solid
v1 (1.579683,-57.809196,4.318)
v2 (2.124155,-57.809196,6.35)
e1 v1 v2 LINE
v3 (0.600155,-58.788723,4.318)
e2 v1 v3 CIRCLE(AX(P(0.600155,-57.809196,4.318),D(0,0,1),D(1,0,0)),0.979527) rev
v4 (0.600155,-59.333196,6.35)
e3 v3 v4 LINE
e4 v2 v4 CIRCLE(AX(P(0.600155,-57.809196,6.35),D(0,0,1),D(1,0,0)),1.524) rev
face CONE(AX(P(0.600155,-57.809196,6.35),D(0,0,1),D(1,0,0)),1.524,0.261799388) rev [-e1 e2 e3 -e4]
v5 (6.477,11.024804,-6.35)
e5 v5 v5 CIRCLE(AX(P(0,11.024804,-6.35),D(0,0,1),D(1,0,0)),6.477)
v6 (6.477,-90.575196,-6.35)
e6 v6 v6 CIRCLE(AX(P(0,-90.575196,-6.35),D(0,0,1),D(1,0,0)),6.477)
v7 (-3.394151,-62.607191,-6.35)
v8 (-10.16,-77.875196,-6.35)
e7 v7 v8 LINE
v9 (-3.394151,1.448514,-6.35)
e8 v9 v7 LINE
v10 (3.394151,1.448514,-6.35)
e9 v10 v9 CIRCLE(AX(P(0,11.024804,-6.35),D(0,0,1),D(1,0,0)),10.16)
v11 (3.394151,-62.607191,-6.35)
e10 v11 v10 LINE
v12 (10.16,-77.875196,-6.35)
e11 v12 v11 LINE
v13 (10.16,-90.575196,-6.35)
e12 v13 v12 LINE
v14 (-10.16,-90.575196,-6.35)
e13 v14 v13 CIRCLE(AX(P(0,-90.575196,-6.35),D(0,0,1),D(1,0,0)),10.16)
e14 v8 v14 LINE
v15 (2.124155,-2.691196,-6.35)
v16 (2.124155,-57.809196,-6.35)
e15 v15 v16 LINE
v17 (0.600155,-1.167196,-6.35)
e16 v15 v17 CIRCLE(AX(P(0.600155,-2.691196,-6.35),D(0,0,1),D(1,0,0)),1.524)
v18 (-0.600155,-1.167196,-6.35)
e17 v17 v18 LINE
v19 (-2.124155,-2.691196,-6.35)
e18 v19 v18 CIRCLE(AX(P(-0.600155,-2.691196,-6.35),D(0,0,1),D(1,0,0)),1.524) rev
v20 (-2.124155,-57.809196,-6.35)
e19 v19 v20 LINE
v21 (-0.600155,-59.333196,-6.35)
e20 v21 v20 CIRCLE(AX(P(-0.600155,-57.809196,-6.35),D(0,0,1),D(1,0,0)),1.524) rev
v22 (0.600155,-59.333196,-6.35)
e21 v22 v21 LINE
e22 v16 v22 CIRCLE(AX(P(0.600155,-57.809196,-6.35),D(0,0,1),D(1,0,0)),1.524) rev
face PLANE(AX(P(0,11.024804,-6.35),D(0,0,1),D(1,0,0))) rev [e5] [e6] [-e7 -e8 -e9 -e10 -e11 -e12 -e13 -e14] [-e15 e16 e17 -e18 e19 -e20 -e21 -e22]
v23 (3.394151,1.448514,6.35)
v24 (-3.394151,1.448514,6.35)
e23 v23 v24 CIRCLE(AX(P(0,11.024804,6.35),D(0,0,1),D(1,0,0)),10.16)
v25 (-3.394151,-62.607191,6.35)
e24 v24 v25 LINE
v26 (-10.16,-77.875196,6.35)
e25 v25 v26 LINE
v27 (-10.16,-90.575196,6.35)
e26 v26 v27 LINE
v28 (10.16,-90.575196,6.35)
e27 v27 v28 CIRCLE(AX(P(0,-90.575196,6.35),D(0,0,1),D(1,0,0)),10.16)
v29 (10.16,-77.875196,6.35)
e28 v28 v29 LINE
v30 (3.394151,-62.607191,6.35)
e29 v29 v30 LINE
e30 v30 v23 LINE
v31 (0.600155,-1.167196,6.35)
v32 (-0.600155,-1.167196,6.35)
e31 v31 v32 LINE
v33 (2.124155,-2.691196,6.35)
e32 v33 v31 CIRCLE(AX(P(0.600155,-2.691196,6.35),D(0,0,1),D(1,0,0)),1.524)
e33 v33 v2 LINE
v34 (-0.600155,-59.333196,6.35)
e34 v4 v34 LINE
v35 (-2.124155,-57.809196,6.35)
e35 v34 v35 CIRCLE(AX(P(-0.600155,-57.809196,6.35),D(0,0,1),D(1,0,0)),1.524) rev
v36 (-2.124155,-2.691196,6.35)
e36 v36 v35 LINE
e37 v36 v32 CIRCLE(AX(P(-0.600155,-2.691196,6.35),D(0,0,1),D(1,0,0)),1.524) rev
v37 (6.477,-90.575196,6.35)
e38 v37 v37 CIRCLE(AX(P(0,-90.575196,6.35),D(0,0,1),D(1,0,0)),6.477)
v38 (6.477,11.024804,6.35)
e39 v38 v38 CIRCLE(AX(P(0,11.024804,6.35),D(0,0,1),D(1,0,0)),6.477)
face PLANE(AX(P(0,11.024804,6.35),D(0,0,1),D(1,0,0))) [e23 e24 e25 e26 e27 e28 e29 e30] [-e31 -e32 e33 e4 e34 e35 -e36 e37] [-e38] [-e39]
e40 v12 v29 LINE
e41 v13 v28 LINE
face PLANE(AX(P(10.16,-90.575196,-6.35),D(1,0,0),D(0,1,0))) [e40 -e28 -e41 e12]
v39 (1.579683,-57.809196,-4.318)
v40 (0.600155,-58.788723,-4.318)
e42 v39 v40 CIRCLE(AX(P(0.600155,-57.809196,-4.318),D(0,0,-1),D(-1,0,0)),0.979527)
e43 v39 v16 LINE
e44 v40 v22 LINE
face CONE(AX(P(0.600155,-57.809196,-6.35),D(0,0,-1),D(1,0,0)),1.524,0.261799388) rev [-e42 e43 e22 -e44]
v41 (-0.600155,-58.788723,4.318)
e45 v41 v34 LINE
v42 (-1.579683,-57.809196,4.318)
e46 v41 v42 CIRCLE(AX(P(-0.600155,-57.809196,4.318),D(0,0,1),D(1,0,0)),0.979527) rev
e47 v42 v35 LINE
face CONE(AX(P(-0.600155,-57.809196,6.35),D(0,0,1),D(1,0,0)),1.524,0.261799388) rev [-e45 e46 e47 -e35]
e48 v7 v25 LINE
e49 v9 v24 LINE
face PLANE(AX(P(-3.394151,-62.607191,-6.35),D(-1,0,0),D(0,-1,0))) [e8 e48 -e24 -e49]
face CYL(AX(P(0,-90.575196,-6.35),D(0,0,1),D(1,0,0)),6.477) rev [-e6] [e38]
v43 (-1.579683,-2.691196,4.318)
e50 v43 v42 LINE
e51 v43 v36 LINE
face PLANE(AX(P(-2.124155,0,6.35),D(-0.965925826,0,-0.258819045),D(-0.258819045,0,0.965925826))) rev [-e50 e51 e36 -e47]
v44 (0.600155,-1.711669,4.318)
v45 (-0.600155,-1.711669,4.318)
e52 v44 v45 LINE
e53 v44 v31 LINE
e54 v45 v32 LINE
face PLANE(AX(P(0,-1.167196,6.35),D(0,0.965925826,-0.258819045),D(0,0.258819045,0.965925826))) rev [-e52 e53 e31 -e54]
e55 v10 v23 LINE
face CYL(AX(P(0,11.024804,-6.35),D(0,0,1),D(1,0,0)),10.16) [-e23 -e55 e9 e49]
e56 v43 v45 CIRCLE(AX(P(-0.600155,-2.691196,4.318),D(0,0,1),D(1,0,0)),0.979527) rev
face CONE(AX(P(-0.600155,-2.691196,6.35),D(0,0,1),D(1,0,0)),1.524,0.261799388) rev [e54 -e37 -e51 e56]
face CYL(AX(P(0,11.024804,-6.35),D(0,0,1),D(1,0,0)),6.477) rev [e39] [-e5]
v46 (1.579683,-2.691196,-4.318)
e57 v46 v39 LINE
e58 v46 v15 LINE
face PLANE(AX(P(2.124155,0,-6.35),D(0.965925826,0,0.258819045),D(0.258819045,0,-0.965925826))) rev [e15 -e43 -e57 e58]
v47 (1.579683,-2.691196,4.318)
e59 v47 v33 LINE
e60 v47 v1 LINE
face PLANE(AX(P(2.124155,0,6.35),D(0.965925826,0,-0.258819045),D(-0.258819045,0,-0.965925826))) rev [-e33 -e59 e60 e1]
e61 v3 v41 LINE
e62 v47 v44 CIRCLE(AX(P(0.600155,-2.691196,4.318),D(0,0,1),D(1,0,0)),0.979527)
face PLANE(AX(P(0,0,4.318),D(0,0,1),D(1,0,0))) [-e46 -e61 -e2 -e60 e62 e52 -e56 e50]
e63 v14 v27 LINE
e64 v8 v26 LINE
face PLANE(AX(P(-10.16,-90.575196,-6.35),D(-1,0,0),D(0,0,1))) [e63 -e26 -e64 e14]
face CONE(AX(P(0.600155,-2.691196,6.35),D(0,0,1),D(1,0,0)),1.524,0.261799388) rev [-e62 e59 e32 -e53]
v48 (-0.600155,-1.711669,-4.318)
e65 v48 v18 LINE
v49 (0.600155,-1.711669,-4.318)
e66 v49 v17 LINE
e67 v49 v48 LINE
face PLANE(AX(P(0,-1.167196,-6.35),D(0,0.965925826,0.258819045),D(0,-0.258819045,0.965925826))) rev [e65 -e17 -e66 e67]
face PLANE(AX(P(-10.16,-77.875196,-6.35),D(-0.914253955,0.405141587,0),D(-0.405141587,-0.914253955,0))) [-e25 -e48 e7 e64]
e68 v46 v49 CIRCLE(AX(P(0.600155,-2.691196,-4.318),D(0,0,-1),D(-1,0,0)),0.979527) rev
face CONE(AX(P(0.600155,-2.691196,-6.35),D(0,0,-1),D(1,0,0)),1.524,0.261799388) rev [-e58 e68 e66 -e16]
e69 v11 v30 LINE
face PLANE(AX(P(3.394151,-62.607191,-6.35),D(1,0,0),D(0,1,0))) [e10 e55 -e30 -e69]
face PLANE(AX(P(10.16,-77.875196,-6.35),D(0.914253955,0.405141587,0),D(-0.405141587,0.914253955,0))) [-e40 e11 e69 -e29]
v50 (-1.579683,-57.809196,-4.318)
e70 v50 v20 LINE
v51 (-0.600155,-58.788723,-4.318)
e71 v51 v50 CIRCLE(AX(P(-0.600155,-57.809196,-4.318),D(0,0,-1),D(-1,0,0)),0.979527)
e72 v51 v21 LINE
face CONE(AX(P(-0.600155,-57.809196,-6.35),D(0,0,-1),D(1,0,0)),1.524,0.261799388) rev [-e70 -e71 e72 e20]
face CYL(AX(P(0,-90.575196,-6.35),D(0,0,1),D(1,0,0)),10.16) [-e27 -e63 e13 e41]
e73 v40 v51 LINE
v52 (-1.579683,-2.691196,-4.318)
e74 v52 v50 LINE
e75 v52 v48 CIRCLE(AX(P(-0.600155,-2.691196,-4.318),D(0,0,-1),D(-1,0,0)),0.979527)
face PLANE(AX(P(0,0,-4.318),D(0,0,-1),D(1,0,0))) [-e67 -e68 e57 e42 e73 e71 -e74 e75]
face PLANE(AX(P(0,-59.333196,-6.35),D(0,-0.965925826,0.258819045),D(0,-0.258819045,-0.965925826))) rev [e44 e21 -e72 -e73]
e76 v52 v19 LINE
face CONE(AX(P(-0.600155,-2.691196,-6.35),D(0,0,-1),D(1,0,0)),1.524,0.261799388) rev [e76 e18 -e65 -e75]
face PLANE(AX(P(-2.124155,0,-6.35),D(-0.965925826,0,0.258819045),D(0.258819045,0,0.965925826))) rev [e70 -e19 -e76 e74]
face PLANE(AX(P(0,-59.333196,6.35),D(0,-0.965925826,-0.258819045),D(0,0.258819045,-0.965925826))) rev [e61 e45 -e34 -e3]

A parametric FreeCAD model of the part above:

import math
import FreeCAD as App
import Part
import Sketcher
from FreeCAD import Vector
Q = App.Units.Quantity


def faces_at(feature, points):
    """Names of the faces that lie closest to the given points."""
    faces = feature.Shape.Faces
    near = lambda p: min(range(len(faces)), key=lambda i: faces[i].distToShape(Part.Vertex(*p))[0])
    return sorted({f"Face{near(p) + 1}" for p in points})

doc = App.newDocument("Part")
body = doc.addObject("PartDesign::Body", "Body")

sketch1 = body.newObject("Sketcher::SketchObject", "Sketch")
sketch1.AttachmentSupport = (doc.getObject("XY_Plane"), [""])
sketch1.MapMode = "FlatFace"
sketch1.addGeometry([
    Part.LineSegment(Vector(10, -91, 0), Vector(10, -78, 0)),
    Part.LineSegment(Vector(10, -78, 0), Vector(3, -63, 0)),
    Part.LineSegment(Vector(3, -63, 0), Vector(3, 1, 0)),
    Part.ArcOfCircle(Part.Circle(Vector(0, 11, 0), Vector(0, 0, 1), 10), math.radians(-70), math.radians(250)),
    Part.LineSegment(Vector(-3, 1, 0), Vector(-3, -63, 0)),
    Part.LineSegment(Vector(-3, -63, 0), Vector(-10, -78, 0)),
    Part.LineSegment(Vector(-10, -78, 0), Vector(-10, -91, 0)),
    Part.ArcOfCircle(Part.Circle(Vector(0, -91, 0), Vector(0, 0, 1), 10), math.radians(180), math.radians(360)),
    Part.Circle(Vector(0, -91, 0), Vector(0, 0, 1), 6),
    Part.Circle(Vector(0, 11, 0), Vector(0, 0, 1), 6),
], False)
sketch1.addConstraint([
    Sketcher.Constraint("Coincident", 0, 2, 1, 1),
    Sketcher.Constraint("Coincident", 1, 2, 2, 1),
    Sketcher.Constraint("Coincident", 2, 2, 3, 1),
    Sketcher.Constraint("Coincident", 3, 2, 4, 1),
    Sketcher.Constraint("Coincident", 4, 2, 5, 1),
    Sketcher.Constraint("Coincident", 5, 2, 6, 1),
    Sketcher.Constraint("Tangent", 6, 2, 7, 1),
    Sketcher.Constraint("Tangent", 7, 2, 0, 1),
    Sketcher.Constraint("Vertical", 0),
    Sketcher.Constraint("Vertical", 2),
    Sketcher.Constraint("Vertical", 4),
    Sketcher.Constraint("Vertical", 6),
    Sketcher.Constraint("Coincident", 8, 3, 7, 3),
    Sketcher.Constraint("Coincident", 9, 3, 3, 3),
    Sketcher.Constraint("Equal", 3, 7),
    Sketcher.Constraint("Equal", 8, 9),
    Sketcher.Constraint("Symmetric", 2, 2, 3, 2, -2),
    Sketcher.Constraint("Symmetric", 0, 2, 5, 2, -2),
    Sketcher.Constraint("Horizontal", 1, 2, 4, 2),
    Sketcher.Constraint("Radius", 3, Q("0.4 in")),
    Sketcher.Constraint("Diameter", 8, Q("0.51 in")),
    Sketcher.Constraint("DistanceY", 0, 1, 0, 2, Q("0.5 in")),
    Sketcher.Constraint("DistanceY", 7, 3, 3, 3, Q("4 in")),
    Sketcher.Constraint("Angle", 1, Q("113.9 deg")),
    Sketcher.Constraint("Distance", 1, 16.699961),
    Sketcher.Constraint("DistanceY", 1, 2, -1, 1, 62.607191),
])
pad1 = body.newObject("PartDesign::Pad", "Pad")
pad1.Profile = sketch1
pad1.Type = "TwoLengths"
pad1.Length = Q("0.25 in")
pad1.Length2 = Q("0.25 in")
body2 = doc.addObject("PartDesign::Body", "Body001")

sketch2 = body2.newObject("Sketcher::SketchObject", "Sketch001")
sketch2.AttachmentSupport = (doc.getObject("XY_Plane001"), [""])
sketch2.MapMode = "FlatFace"
sketch2.AttachmentOffset = App.Placement(Vector(0, 0, 0.25 * 25.4), App.Rotation())
sketch2.addGeometry([
    Part.ArcOfCircle(Part.Circle(Vector(0.6, -2.7, 0), Vector(0, 0, 1), 1.5), math.radians(0), math.radians(90)),
    Part.LineSegment(Vector(0.6, -1.2, 0), Vector(-0.6, -1.2, 0)),
    Part.ArcOfCircle(Part.Circle(Vector(-0.6, -2.7, 0), Vector(0, 0, 1), 1.5), math.radians(90), math.radians(180)),
    Part.LineSegment(Vector(-2.1, -2.7, 0), Vector(-2.1, -57.8, 0)),
    Part.ArcOfCircle(Part.Circle(Vector(-0.6, -57.8, 0), Vector(0, 0, 1), 1.5), math.radians(180), math.radians(270)),
    Part.LineSegment(Vector(-0.6, -59.3, 0), Vector(0.6, -59.3, 0)),
    Part.ArcOfCircle(Part.Circle(Vector(0.6, -57.8, 0), Vector(0, 0, 1), 1.5), math.radians(-90), math.radians(0)),
    Part.LineSegment(Vector(2.1, -57.8, 0), Vector(2.1, -2.7, 0)),
], False)
sketch2.addConstraint([
    Sketcher.Constraint("Tangent", 0, 2, 1, 1),
    Sketcher.Constraint("Tangent", 1, 2, 2, 1),
    Sketcher.Constraint("Tangent", 2, 2, 3, 1),
    Sketcher.Constraint("Tangent", 3, 2, 4, 1),
    Sketcher.Constraint("Tangent", 4, 2, 5, 1),
    Sketcher.Constraint("Tangent", 5, 2, 6, 1),
    Sketcher.Constraint("Tangent", 6, 2, 7, 1),
    Sketcher.Constraint("Tangent", 7, 2, 0, 1),
    Sketcher.Constraint("Horizontal", 1),
    Sketcher.Constraint("Vertical", 3),
    Sketcher.Constraint("Horizontal", 5),
    Sketcher.Constraint("Vertical", 7),
    Sketcher.Constraint("Equal", 0, 2),
    Sketcher.Constraint("Equal", 2, 4),
    Sketcher.Constraint("Equal", 4, 6),
    Sketcher.Constraint("Radius", 0, Q("0.06 in")),
    Sketcher.Constraint("DistanceY", 3, 2, 3, 1, Q("2.17 in")),
    Sketcher.Constraint("DistanceX", 1, 2, 1, 1, 1.200311),
    Sketcher.Constraint("DistanceX", -1, 1, 0, 3, 0.600155),
    Sketcher.Constraint("DistanceY", 0, 3, -1, 1, 2.691196),
])
pad2 = body2.newObject("PartDesign::Pad", "Pad001")
pad2.Profile = sketch2
pad2.Length = Q("0.08 in")
pad2.Reversed = True
doc.recompute()

datumplane = body2.newObject("PartDesign::Plane", "DatumPlane")
datumplane.AttachmentSupport = (doc.getObject("XY_Plane001"), [""])
datumplane.MapMode = "FlatFace"
datumplane.AttachmentOffset = App.Placement(Vector(0, 0, 0.25 * 25.4), App.Rotation())
draft = body2.newObject("PartDesign::Draft", "Draft")
draft.Base = (pad2, faces_at(pad2, [
    (2.124, -30.25, 5.334),
    (1.678, -1.614, 5.334),
    (0, -1.167, 5.334),
    (-1.678, -1.614, 5.334),
    (-2.124, -30.25, 5.334),
    (-1.678, -58.887, 5.334),
    (0, -59.333, 5.334),
    (1.678, -58.887, 5.334),
]))
draft.NeutralPlane = (datumplane, [""])
draft.Angle = 15
draft.Reversed = True
doc.recompute()

boolean = body.newObject("PartDesign::Boolean", "Boolean")
boolean.Type = "Cut"
boolean.addObjects([body2])
body3 = doc.addObject("PartDesign::Body", "Body002")

sketch3 = body3.newObject("Sketcher::SketchObject", "Sketch002")
sketch3.AttachmentSupport = (doc.getObject("XY_Plane002"), [""])
sketch3.MapMode = "FlatFace"
sketch3.AttachmentOffset = App.Placement(Vector(0, 0, -0.25 * 25.4), App.Rotation())
sketch3.addGeometry([
    Part.ArcOfCircle(Part.Circle(Vector(0.6, -2.7, 0), Vector(0, 0, 1), 1.5), math.radians(0), math.radians(90)),
    Part.LineSegment(Vector(2.1, -2.7, 0), Vector(2.1, -57.8, 0)),
    Part.ArcOfCircle(Part.Circle(Vector(0.6, -57.8, 0), Vector(0, 0, 1), 1.5), math.radians(-90), math.radians(0)),
    Part.LineSegment(Vector(0.6, -59.3, 0), Vector(-0.6, -59.3, 0)),
    Part.ArcOfCircle(Part.Circle(Vector(-0.6, -57.8, 0), Vector(0, 0, 1), 1.5), math.radians(180), math.radians(270)),
    Part.LineSegment(Vector(-2.1, -57.8, 0), Vector(-2.1, -2.7, 0)),
    Part.ArcOfCircle(Part.Circle(Vector(-0.6, -2.7, 0), Vector(0, 0, 1), 1.5), math.radians(90), math.radians(180)),
    Part.LineSegment(Vector(-0.6, -1.2, 0), Vector(0.6, -1.2, 0)),
], False)
sketch3.addConstraint([
    Sketcher.Constraint("Tangent", 0, 1, 1, 1),
    Sketcher.Constraint("Tangent", 1, 2, 2, 2),
    Sketcher.Constraint("Tangent", 2, 1, 3, 1),
    Sketcher.Constraint("Tangent", 3, 2, 4, 2),
    Sketcher.Constraint("Tangent", 4, 1, 5, 1),
    Sketcher.Constraint("Tangent", 5, 2, 6, 2),
    Sketcher.Constraint("Tangent", 6, 1, 7, 1),
    Sketcher.Constraint("Tangent", 7, 2, 0, 2),
    Sketcher.Constraint("Vertical", 1),
    Sketcher.Constraint("Horizontal", 3),
    Sketcher.Constraint("Vertical", 5),
    Sketcher.Constraint("Horizontal", 7),
    Sketcher.Constraint("Equal", 0, 2),
    Sketcher.Constraint("Equal", 2, 4),
    Sketcher.Constraint("Equal", 4, 6),
    Sketcher.Constraint("Radius", 0, Q("0.06 in")),
    Sketcher.Constraint("DistanceY", 1, 2, 1, 1, Q("2.17 in")),
    Sketcher.Constraint("DistanceX", 3, 2, 3, 1, 1.200311),
    Sketcher.Constraint("DistanceX", -1, 1, 0, 3, 0.600155),
    Sketcher.Constraint("DistanceY", 0, 3, -1, 1, 2.691196),
])
pad3 = body3.newObject("PartDesign::Pad", "Pad002")
pad3.Profile = sketch3
pad3.Length = Q("0.08 in")
doc.recompute()

datumplane2 = body3.newObject("PartDesign::Plane", "DatumPlane001")
datumplane2.AttachmentSupport = (doc.getObject("XY_Plane002"), [""])
datumplane2.MapMode = "FlatFace"
datumplane2.AttachmentOffset = App.Placement(Vector(0, 0, -0.25 * 25.4), App.Rotation())
draft2 = body3.newObject("PartDesign::Draft", "Draft001")
draft2.Base = (pad3, faces_at(pad3, [
    (2.124, -30.25, -5.334),
    (1.678, -1.614, -5.334),
    (0, -1.167, -5.334),
    (-1.678, -1.614, -5.334),
    (-2.124, -30.25, -5.334),
    (-1.678, -58.887, -5.334),
    (0, -59.333, -5.334),
    (1.678, -58.887, -5.334),
]))
draft2.NeutralPlane = (datumplane2, [""])
draft2.Angle = 15
draft2.Reversed = False
doc.recompute()

boolean2 = body.newObject("PartDesign::Boolean", "Boolean001")
boolean2.Type = "Cut"
boolean2.addObjects([body3])

doc.recompute()
